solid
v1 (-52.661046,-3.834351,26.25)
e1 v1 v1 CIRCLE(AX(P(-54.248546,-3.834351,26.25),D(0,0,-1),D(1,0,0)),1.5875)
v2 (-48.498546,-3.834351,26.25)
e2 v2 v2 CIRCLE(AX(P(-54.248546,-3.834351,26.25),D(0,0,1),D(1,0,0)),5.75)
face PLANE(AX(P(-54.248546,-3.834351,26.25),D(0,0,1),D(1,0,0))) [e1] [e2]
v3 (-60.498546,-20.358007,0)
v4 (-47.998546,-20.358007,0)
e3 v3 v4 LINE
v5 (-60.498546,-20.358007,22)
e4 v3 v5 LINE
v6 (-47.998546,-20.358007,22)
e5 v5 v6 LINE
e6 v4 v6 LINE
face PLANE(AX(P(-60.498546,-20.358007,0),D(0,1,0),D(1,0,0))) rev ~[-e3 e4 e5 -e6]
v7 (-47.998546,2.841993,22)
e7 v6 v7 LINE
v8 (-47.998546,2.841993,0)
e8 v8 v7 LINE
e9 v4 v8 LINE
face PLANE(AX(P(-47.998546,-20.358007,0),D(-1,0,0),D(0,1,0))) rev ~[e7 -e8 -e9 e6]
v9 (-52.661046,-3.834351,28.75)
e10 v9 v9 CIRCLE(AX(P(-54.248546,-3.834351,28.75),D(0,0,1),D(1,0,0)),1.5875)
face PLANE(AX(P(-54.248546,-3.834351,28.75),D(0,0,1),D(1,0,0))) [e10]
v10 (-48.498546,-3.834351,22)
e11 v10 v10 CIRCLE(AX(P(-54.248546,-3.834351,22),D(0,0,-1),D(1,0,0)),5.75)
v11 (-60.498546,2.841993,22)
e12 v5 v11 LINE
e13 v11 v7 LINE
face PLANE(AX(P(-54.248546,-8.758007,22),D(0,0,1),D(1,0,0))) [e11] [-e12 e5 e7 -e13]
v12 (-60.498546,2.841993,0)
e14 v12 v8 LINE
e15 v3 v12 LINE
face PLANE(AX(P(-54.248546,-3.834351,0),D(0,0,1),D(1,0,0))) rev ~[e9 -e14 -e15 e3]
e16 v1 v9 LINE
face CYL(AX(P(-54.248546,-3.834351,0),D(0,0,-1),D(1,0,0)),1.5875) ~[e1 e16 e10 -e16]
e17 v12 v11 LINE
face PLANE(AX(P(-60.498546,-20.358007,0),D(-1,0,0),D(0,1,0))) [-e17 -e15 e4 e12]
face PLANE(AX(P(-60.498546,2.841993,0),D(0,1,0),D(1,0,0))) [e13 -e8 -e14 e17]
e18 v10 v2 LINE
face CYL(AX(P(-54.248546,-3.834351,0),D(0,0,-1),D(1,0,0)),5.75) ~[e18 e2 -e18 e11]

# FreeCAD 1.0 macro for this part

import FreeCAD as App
import Part
import Sketcher

V = App.Vector

doc = App.newDocument("Part")
body = doc.addObject("PartDesign::Body", "Body")

# Sketch on XY plane
sketch1 = body.newObject("Sketcher::SketchObject", "Sketch")
sketch1.AttachmentSupport = (doc.getObject("XY_Plane"), [""])
sketch1.MapMode = "FlatFace"
sketch1.addGeometry([
    Part.LineSegment(V(-60, 3, 0), V(-60, -20, 0)),
    Part.LineSegment(V(-60, -20, 0), V(-48, -20, 0)),
    Part.LineSegment(V(-48, -20, 0), V(-48, 3, 0)),
    Part.LineSegment(V(-48, 3, 0), V(-60, 3, 0)),
], False)
sketch1.addConstraint([
    Sketcher.Constraint("Coincident", 0, 2, 1, 1),
    Sketcher.Constraint("Coincident", 1, 2, 2, 1),
    Sketcher.Constraint("Coincident", 2, 2, 3, 1),
    Sketcher.Constraint("Coincident", 3, 2, 0, 1),
    Sketcher.Constraint("Vertical", 0),
    Sketcher.Constraint("Horizontal", 1),
    Sketcher.Constraint("Vertical", 2),
    Sketcher.Constraint("Horizontal", 3),
    Sketcher.Constraint("DistanceX", 1, 1, 1, 2, 12.5),
    Sketcher.Constraint("DistanceY", 0, 2, 0, 1, 23.2),
    Sketcher.Constraint("DistanceX", 0, 2, -1, 1, 60.498546),
    Sketcher.Constraint("DistanceY", 0, 2, -1, 1, 20.358007),
])
pad1 = body.newObject("PartDesign::Pad", "Pad")
pad1.Profile = sketch1
pad1.Length = 22

# Sketch on XY plane
sketch2 = body.newObject("Sketcher::SketchObject", "Sketch001")
sketch2.AttachmentSupport = (doc.getObject("XY_Plane"), [""])
sketch2.MapMode = "FlatFace"
sketch2.addGeometry(Part.Circle(V(-54, -4, 0), V(0, 0, 1), 6), False)
sketch2.addConstraint([
    Sketcher.Constraint("Diameter", 0, 11.5),
    Sketcher.Constraint("DistanceY", 0, 3, -1, 1, 3.834351),
    Sketcher.Constraint("DistanceX", 0, 3, -1, 1, 54.248546),
])
pad2 = body.newObject("PartDesign::Pad", "Pad001")
pad2.Profile = sketch2
pad2.Length = 26.25

# Sketch on XY plane
sketch3 = body.newObject("Sketcher::SketchObject", "Sketch002")
sketch3.AttachmentSupport = (doc.getObject("XY_Plane"), [""])
sketch3.MapMode = "FlatFace"
sketch3.addGeometry(Part.Circle(V(-54.2, -3.8, 0), V(0, 0, 1), 1.6), False)
sketch3.addConstraint([
    Sketcher.Constraint("Diameter", 0, 3.175),
    Sketcher.Constraint("DistanceY", 0, 3, -1, 1, 3.834351),
    Sketcher.Constraint("DistanceX", 0, 3, -1, 1, 54.248546),
])
pad3 = body.newObject("PartDesign::Pad", "Pad002")
pad3.Profile = sketch3
pad3.Length = 28.75

doc.recompute()
